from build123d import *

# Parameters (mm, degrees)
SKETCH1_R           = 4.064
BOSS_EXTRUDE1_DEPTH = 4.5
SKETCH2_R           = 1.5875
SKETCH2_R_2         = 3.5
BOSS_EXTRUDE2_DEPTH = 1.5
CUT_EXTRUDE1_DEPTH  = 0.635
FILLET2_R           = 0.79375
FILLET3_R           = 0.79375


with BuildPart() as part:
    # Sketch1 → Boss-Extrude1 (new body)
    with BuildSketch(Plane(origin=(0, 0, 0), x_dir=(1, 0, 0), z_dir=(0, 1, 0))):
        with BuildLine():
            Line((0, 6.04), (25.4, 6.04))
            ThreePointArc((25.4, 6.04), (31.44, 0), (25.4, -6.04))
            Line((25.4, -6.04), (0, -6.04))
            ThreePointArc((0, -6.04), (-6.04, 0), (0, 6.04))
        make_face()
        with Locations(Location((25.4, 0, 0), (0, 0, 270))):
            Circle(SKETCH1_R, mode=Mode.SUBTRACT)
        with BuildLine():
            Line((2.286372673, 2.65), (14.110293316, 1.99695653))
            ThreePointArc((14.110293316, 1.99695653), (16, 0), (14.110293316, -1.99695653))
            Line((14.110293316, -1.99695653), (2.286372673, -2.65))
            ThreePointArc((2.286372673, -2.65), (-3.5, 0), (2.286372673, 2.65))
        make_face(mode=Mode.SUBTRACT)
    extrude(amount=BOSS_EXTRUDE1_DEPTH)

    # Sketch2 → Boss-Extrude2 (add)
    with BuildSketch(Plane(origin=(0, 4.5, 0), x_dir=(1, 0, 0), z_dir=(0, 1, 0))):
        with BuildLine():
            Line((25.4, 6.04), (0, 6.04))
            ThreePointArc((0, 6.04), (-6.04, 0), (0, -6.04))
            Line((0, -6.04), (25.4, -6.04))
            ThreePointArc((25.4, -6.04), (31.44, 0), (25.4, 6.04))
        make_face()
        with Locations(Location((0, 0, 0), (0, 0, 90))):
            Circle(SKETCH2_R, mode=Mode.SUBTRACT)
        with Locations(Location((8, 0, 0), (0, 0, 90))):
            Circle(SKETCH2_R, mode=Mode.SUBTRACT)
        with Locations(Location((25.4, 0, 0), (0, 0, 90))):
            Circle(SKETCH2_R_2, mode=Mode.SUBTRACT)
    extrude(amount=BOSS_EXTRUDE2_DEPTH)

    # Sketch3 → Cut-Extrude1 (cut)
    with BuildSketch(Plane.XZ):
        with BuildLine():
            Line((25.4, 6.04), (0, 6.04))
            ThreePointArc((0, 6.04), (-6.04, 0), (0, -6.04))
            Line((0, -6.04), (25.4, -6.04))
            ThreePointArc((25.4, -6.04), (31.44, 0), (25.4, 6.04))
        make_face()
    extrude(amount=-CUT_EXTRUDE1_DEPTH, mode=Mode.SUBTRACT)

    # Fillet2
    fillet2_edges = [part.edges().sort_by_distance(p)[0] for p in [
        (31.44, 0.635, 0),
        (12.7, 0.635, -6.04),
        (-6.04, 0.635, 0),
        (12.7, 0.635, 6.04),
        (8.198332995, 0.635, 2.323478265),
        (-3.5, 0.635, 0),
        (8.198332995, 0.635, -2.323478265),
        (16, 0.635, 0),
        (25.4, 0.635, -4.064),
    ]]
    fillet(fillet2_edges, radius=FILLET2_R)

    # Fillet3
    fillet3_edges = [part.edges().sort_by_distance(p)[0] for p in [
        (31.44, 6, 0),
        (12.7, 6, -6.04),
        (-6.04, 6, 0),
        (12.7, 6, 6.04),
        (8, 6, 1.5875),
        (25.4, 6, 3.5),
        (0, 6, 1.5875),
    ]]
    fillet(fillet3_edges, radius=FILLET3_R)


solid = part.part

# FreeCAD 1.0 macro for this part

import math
import FreeCAD as App
import Part
import Sketcher

V = App.Vector
Q = App.Units.Quantity


def edges_at(feature, points):
    """Names of the edges that pass closest to the given points."""
    edges = feature.Shape.Edges
    near = lambda p: min(range(len(edges)), key=lambda i: edges[i].distToShape(Part.Vertex(*p))[0])
    return sorted({f"Edge{near(p) + 1}" for p in points})

doc = App.newDocument("Part")
params = doc.addObject("Spreadsheet::Sheet", "Params")
for row, (alias, value) in enumerate([
    ("sketch1_diameter", "0.32 in"),
    ("sketch1_width", "1 in"),
    ("pad1_length", "4.5 mm"),
    ("sketch2_width", "1 in"),
    ("sketch2_diameter", "0.125 in"),
    ("pad2_length", "1.5 mm"),
    ("sketch3_width", "1 in"),
    ("pocket1_length", "0.025 in"),
    ("fillet_radius", "0.03125 in"),
    ("fillet2_radius", "0.03125 in"),
], start=1):
    params.set(f"A{row}", alias)
    params.set(f"B{row}", "=" + value)
    params.setAlias(f"B{row}", alias)

body = doc.addObject("PartDesign::Body", "Body")

# Sketch on XZ plane
sketch1 = body.newObject("Sketcher::SketchObject", "Sketch")
sketch1.AttachmentSupport = (doc.getObject("XZ_Plane"), [""])
sketch1.MapMode = "FlatFace"
sketch1.addGeometry([
    Part.LineSegment(V(25.4, -6, 0), V(0, -6, 0)),  # 0
    Part.ArcOfCircle(Part.Circle(V(0, 0, 0), V(0, 0, 1), 6), math.radians(90), math.radians(270)),  # 1
    Part.LineSegment(V(0, 6, 0), V(25.4, 6, 0)),  # 2
    Part.ArcOfCircle(Part.Circle(V(25.4, 0, 0), V(0, 0, 1), 6), math.radians(-90), math.radians(90)),  # 3
    Part.Circle(V(25.4, 0, 0), V(0, 0, 1), 4.1),  # 4
    Part.LineSegment(V(2.3, -2.6, 0), V(14.1, -2, 0)),  # 5
    Part.ArcOfCircle(Part.Circle(V(14, 0, 0), V(0, 0, 1), 2), math.radians(-87), math.radians(87)),  # 6
    Part.LineSegment(V(14.1, 2, 0), V(2.3, 2.6, 0)),  # 7
    Part.ArcOfCircle(Part.Circle(V(0, 0, 0), V(0, 0, 1), 3.5), math.radians(49), math.radians(311)),  # 8
], False)
sketch1.addConstraint([
    Sketcher.Constraint("Tangent", 0, 2, 1, 2),
    Sketcher.Constraint("Tangent", 1, 1, 2, 1),
    Sketcher.Constraint("Tangent", 2, 2, 3, 2),
    Sketcher.Constraint("Tangent", 3, 1, 0, 1),
    Sketcher.Constraint("Tangent", 5, 2, 6, 1),
    Sketcher.Constraint("Tangent", 6, 2, 7, 1),
    Sketcher.Constraint("Coincident", 7, 2, 8, 1),
    Sketcher.Constraint("Coincident", 8, 2, 5, 1),
    Sketcher.Constraint("Horizontal", 0),
    Sketcher.Constraint("Horizontal", 2),
    Sketcher.Constraint("Coincident", 1, 3, -1, 1),
    Sketcher.Constraint("Coincident", 8, 3, -1, 1),
    Sketcher.Constraint("Coincident", 4, 3, 3, 3),
    Sketcher.Constraint("Symmetric", 5, 2, 6, 2, -1),
    Sketcher.Constraint("Diameter", 4, Q("0.32 in")),
    Sketcher.Constraint("DistanceX", 0, 2, 0, 1, Q("1 in")),
    Sketcher.Constraint("Radius", 1, 6.04),
    Sketcher.Constraint("Radius", 6, 2.0),
    Sketcher.Constraint("Radius", 8, 3.5),
    Sketcher.Constraint("DistanceX", -1, 1, 6, 3, 14.0),
    Sketcher.Constraint("DistanceY", -1, 1, 7, 2, 2.65),
])
sketch1.setExpression("Constraints[14]", "Params.sketch1_diameter")
sketch1.setExpression("Constraints[15]", "Params.sketch1_width")
pad1 = body.newObject("PartDesign::Pad", "Pad")
pad1.Profile = sketch1
pad1.setExpression("Length", "Params.pad1_length")
pad1.Reversed = True

# Sketch on XZ plane
sketch2 = body.newObject("Sketcher::SketchObject", "Sketch001")
sketch2.AttachmentSupport = (doc.getObject("XZ_Plane"), [""])
sketch2.MapMode = "FlatFace"
sketch2.AttachmentOffset = App.Placement(V(0, 0, -4.5), App.Rotation())
sketch2.addGeometry([
    Part.LineSegment(V(25.4, -6, 0), V(0, -6, 0)),  # 0
    Part.ArcOfCircle(Part.Circle(V(0, 0, 0), V(0, 0, 1), 6), math.radians(90), math.radians(270)),  # 1
    Part.LineSegment(V(0, 6, 0), V(25.4, 6, 0)),  # 2
    Part.ArcOfCircle(Part.Circle(V(25.4, 0, 0), V(0, 0, 1), 6), math.radians(-90), math.radians(90)),  # 3
    Part.Circle(V(0, 0, 0), V(0, 0, 1), 1.6),  # 4
    Part.Circle(V(8, 0, 0), V(0, 0, 1), 1.6),  # 5
    Part.Circle(V(25.4, 0, 0), V(0, 0, 1), 3.5),  # 6
], False)
sketch2.addConstraint([
    Sketcher.Constraint("Tangent", 0, 2, 1, 2),
    Sketcher.Constraint("Tangent", 1, 1, 2, 1),
    Sketcher.Constraint("Tangent", 2, 2, 3, 2),
    Sketcher.Constraint("Tangent", 3, 1, 0, 1),
    Sketcher.Constraint("Horizontal", 0),
    Sketcher.Constraint("Horizontal", 2),
    Sketcher.Constraint("Coincident", 1, 3, -1, 1),
    Sketcher.Constraint("Coincident", 4, 3, -1, 1),
    Sketcher.Constraint("Coincident", 6, 3, 3, 3),
    Sketcher.Constraint("Equal", 4, 5),
    Sketcher.Constraint("PointOnObject", 5, 3, -1),
    Sketcher.Constraint("DistanceX", 0, 2, 0, 1, Q("1 in")),
    Sketcher.Constraint("Diameter", 4, Q("0.125 in")),
    Sketcher.Constraint("Diameter", 6, 7.0),
    Sketcher.Constraint("Radius", 1, 6.04),
    Sketcher.Constraint("DistanceX", -1, 1, 5, 3, 8.0),
])
sketch2.setExpression("Constraints[11]", "Params.sketch2_width")
sketch2.setExpression("Constraints[12]", "Params.sketch2_diameter")
pad2 = body.newObject("PartDesign::Pad", "Pad001")
pad2.Profile = sketch2
pad2.setExpression("Length", "Params.pad2_length")
pad2.Reversed = True

# Sketch on XZ plane
sketch3 = body.newObject("Sketcher::SketchObject", "Sketch002")
sketch3.AttachmentSupport = (doc.getObject("XZ_Plane"), [""])
sketch3.MapMode = "FlatFace"
sketch3.addGeometry([
    Part.LineSegment(V(25, 6, 0), V(0, 6, 0)),
    Part.ArcOfCircle(Part.Circle(V(0, 0, 0), V(0, 0, 1), 6), math.radians(90), math.radians(270)),
    Part.LineSegment(V(0, -6, 0), V(25, -6, 0)),
    Part.ArcOfCircle(Part.Circle(V(25, 0, 0), V(0, 0, 1), 6), math.radians(-90), math.radians(90)),
], False)
sketch3.addConstraint([
    Sketcher.Constraint("Tangent", 0, 2, 1, 1),
    Sketcher.Constraint("Tangent", 1, 2, 2, 1),
    Sketcher.Constraint("Tangent", 2, 2, 3, 1),
    Sketcher.Constraint("Tangent", 3, 2, 0, 1),
    Sketcher.Constraint("Horizontal", 0),
    Sketcher.Constraint("Horizontal", 2),
    Sketcher.Constraint("Coincident", 1, 3, -1, 1),
    Sketcher.Constraint("DistanceX", 0, 2, 0, 1, Q("1 in")),
    Sketcher.Constraint("Radius", 1, 6.04),
])
sketch3.setExpression("Constraints[7]", "Params.sketch3_width")
pocket1 = body.newObject("PartDesign::Pocket", "Pocket")
pocket1.Profile = sketch3
pocket1.setExpression("Length", "Params.pocket1_length")
doc.recompute()

fillet = body.newObject("PartDesign::Fillet", "Fillet")
fillet.Base = (pocket1, edges_at(pocket1, [
    (31.44, 0.635, 0),
    (12.7, 0.635, -6.04),
    (-6.04, 0.635, 0),
    (12.7, 0.635, 6.04),
    (8.198, 0.635, 2.323),
    (-3.5, 0.635, 0),
    (8.198, 0.635, -2.323),
    (16, 0.635, 0),
    (25.4, 0.635, -4.064),
]))
fillet.setExpression("Radius", "Params.fillet_radius")
doc.recompute()

fillet2 = body.newObject("PartDesign::Fillet", "Fillet001")
fillet2.Base = (fillet, edges_at(fillet, [
    (31.44, 6, 0),
    (12.7, 6, -6.04),
    (-6.04, 6, 0),
    (12.7, 6, 6.04),
    (8, 6, 1.587),
    (25.4, 6, 3.5),
    (0, 6, 1.587),
]))
fillet2.setExpression("Radius", "Params.fillet2_radius")

doc.recompute()
